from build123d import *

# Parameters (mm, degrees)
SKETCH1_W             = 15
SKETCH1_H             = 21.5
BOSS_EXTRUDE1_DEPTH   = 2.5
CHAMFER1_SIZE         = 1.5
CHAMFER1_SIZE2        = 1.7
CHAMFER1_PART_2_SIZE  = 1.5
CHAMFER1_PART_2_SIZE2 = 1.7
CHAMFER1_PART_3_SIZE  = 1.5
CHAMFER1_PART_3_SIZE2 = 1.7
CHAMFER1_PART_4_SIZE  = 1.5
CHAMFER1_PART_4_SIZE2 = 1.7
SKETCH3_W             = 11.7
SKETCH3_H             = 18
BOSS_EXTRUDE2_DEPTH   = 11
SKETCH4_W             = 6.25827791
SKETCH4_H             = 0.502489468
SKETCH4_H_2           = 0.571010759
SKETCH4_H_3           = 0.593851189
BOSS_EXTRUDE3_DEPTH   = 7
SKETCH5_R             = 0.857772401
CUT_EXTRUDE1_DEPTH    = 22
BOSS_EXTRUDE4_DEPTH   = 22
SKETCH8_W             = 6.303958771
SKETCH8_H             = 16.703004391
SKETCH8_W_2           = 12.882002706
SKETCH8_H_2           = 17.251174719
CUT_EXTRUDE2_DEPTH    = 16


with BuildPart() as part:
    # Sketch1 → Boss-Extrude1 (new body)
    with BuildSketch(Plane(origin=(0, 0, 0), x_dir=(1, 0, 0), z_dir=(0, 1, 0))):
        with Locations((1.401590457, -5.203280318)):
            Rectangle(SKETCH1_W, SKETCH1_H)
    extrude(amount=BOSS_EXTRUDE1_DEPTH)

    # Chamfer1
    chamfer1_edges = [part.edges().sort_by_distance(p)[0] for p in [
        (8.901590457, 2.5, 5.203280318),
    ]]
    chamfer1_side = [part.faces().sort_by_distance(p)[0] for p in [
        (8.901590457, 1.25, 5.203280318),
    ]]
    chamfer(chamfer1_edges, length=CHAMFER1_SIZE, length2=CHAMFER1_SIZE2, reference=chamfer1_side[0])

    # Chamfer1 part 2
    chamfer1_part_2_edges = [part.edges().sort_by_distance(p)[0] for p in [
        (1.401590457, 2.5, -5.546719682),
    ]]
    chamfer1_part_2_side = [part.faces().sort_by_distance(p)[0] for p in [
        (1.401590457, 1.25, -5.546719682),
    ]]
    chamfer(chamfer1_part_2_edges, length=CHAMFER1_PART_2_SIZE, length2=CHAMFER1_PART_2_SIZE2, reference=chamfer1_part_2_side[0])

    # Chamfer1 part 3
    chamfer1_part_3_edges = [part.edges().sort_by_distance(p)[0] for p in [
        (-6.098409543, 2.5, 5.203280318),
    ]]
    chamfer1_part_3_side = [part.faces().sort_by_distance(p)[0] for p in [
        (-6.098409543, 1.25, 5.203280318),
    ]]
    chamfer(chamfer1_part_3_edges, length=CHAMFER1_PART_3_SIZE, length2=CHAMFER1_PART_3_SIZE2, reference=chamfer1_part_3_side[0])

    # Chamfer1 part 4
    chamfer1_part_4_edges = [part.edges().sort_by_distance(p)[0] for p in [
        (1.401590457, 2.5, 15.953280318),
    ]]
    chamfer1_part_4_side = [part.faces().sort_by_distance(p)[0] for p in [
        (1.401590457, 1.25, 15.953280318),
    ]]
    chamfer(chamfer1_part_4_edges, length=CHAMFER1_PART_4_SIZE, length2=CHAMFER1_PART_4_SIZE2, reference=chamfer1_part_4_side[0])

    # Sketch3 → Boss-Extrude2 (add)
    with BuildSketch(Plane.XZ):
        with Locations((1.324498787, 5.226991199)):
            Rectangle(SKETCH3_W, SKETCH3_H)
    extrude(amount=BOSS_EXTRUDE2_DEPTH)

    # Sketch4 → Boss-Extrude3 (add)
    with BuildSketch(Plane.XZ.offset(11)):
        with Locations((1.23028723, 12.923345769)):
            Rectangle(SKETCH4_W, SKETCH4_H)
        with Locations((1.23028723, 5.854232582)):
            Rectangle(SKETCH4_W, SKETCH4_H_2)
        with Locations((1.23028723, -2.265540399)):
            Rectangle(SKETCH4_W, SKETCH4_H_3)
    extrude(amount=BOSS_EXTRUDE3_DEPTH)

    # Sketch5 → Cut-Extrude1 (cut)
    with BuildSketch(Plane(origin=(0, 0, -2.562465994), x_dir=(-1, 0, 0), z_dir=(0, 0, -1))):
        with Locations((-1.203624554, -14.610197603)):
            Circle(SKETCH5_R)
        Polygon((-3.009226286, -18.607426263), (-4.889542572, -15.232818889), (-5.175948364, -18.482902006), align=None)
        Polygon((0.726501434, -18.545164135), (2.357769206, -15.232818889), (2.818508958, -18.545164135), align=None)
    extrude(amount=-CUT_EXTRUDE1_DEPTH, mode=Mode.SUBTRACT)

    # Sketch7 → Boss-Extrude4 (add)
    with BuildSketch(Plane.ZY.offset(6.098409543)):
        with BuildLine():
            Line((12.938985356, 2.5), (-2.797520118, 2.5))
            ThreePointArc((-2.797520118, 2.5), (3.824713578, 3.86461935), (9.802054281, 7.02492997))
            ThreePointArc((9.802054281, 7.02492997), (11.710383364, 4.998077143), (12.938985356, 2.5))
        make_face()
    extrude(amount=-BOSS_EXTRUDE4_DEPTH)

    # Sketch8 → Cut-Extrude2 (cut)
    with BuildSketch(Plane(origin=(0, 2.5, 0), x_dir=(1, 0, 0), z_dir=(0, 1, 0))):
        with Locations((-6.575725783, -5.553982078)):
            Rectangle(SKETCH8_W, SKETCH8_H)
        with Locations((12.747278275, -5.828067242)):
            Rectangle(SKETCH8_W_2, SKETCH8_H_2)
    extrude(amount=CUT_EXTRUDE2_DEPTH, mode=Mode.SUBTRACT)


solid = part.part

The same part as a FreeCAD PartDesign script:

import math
import FreeCAD as App
import Part
import Sketcher

V = App.Vector


def edges_at(feature, points):
    """Names of the edges that pass closest to the given points."""
    edges = feature.Shape.Edges
    near = lambda p: min(range(len(edges)), key=lambda i: edges[i].distToShape(Part.Vertex(*p))[0])
    return sorted({f"Edge{near(p) + 1}" for p in points})

doc = App.newDocument("Part")
body = doc.addObject("PartDesign::Body", "Body")

sketch1 = doc.addObject("Sketcher::SketchObject", "Sketch")
body.addObject(sketch1)
sketch1.AttachmentSupport = (doc.XZ_Plane, [""])
sketch1.MapMode = "FlatFace"
sketch1.addGeometry([
    Part.LineSegment(V(-6, -6, 0), V(-6, 16, 0)),
    Part.LineSegment(V(-6, 16, 0), V(9, 16, 0)),
    Part.LineSegment(V(9, 16, 0), V(9, -6, 0)),
    Part.LineSegment(V(9, -6, 0), V(-6, -6, 0)),
], False)
sketch1.addConstraint([
    Sketcher.Constraint("Coincident", 0, 2, 1, 1),
    Sketcher.Constraint("Coincident", 1, 2, 2, 1),
    Sketcher.Constraint("Coincident", 2, 2, 3, 1),
    Sketcher.Constraint("Coincident", 3, 2, 0, 1),
    Sketcher.Constraint("Vertical", 0),
    Sketcher.Constraint("Horizontal", 1),
    Sketcher.Constraint("Vertical", 2),
    Sketcher.Constraint("Horizontal", 3),
    Sketcher.Constraint("DistanceX", 1, 1, 1, 2, 15.0),
    Sketcher.Constraint("DistanceY", 0, 1, 0, 2, 21.5),
    Sketcher.Constraint("DistanceX", 0, 2, -1, 1, 6.09841),
    Sketcher.Constraint("DistanceY", -1, 1, 0, 2, 15.95328),
])
pad1 = doc.addObject("PartDesign::Pad", "Pad")
body.addObject(pad1)
pad1.Profile = sketch1
pad1.Length = 2.5
pad1.Reversed = True
doc.recompute()

chamfer = doc.addObject("PartDesign::Chamfer", "Chamfer")
body.addObject(chamfer)
chamfer.Base = (pad1, edges_at(pad1, [(8.902, 2.5, 5.203)]))
chamfer.ChamferType = "Two distances"
chamfer.Size = 1.5
chamfer.Size2 = 1.7
doc.recompute()

chamfer2 = doc.addObject("PartDesign::Chamfer", "Chamfer001")
body.addObject(chamfer2)
chamfer2.Base = (chamfer, edges_at(chamfer, [(0.552, 2.5, -5.547)]))
chamfer2.ChamferType = "Two distances"
chamfer2.Size = 1.5
chamfer2.Size2 = 1.7
chamfer2.FlipDirection = True
doc.recompute()

chamfer3 = doc.addObject("PartDesign::Chamfer", "Chamfer002")
body.addObject(chamfer3)
chamfer3.Base = (chamfer2, edges_at(chamfer2, [(-6.098, 2.5, 6.053)]))
chamfer3.ChamferType = "Two distances"
chamfer3.Size = 1.5
chamfer3.Size2 = 1.7
chamfer3.FlipDirection = True
doc.recompute()

chamfer4 = doc.addObject("PartDesign::Chamfer", "Chamfer003")
body.addObject(chamfer4)
chamfer4.Base = (chamfer3, edges_at(chamfer3, [(1.402, 2.5, 15.953)]))
chamfer4.ChamferType = "Two distances"
chamfer4.Size = 1.5
chamfer4.Size2 = 1.7
chamfer4.FlipDirection = True

sketch2 = doc.addObject("Sketcher::SketchObject", "Sketch001")
body.addObject(sketch2)
sketch2.AttachmentSupport = (doc.XZ_Plane, [""])
sketch2.MapMode = "FlatFace"
sketch2.addGeometry([
    Part.LineSegment(V(-5, 14, 0), V(-5, -4, 0)),
    Part.LineSegment(V(-5, -4, 0), V(7, -4, 0)),
    Part.LineSegment(V(7, -4, 0), V(7, 14, 0)),
    Part.LineSegment(V(7, 14, 0), V(-5, 14, 0)),
], False)
sketch2.addConstraint([
    Sketcher.Constraint("Coincident", 0, 2, 1, 1),
    Sketcher.Constraint("Coincident", 1, 2, 2, 1),
    Sketcher.Constraint("Coincident", 2, 2, 3, 1),
    Sketcher.Constraint("Coincident", 3, 2, 0, 1),
    Sketcher.Constraint("Vertical", 0),
    Sketcher.Constraint("Horizontal", 1),
    Sketcher.Constraint("Vertical", 2),
    Sketcher.Constraint("Horizontal", 3),
    Sketcher.Constraint("DistanceY", 0, 2, 0, 1, 18.0),
    Sketcher.Constraint("DistanceX", 1, 1, 1, 2, 11.7),
    Sketcher.Constraint("DistanceX", 0, 2, -1, 1, 4.525501),
    Sketcher.Constraint("DistanceY", 0, 2, -1, 1, 3.773009),
])
pad2 = doc.addObject("PartDesign::Pad", "Pad001")
body.addObject(pad2)
pad2.Profile = sketch2
pad2.Length = 11

sketch3 = doc.addObject("Sketcher::SketchObject", "Sketch002")
body.addObject(sketch3)
sketch3.AttachmentSupport = (doc.XZ_Plane, [""])
sketch3.MapMode = "FlatFace"
sketch3.AttachmentOffset = App.Placement(V(0, 0, 11), App.Rotation())
sketch3.addGeometry([
    Part.LineSegment(V(-1.9, 13.2, 0), V(-1.9, 12.7, 0)),
    Part.LineSegment(V(-1.9, 12.7, 0), V(4.4, 12.7, 0)),
    Part.LineSegment(V(4.4, 12.7, 0), V(4.4, 13.2, 0)),
    Part.LineSegment(V(4.4, 13.2, 0), V(-1.9, 13.2, 0)),
    Part.LineSegment(V(-1.9, 6.1, 0), V(-1.9, 5.6, 0)),
    Part.LineSegment(V(-1.9, 5.6, 0), V(4.4, 5.6, 0)),
    Part.LineSegment(V(4.4, 5.6, 0), V(4.4, 6.1, 0)),
    Part.LineSegment(V(4.4, 6.1, 0), V(-1.9, 6.1, 0)),
    Part.LineSegment(V(-1.9, -2, 0), V(-1.9, -2.6, 0)),
    Part.LineSegment(V(-1.9, -2.6, 0), V(4.4, -2.6, 0)),
    Part.LineSegment(V(4.4, -2.6, 0), V(4.4, -2, 0)),
    Part.LineSegment(V(4.4, -2, 0), V(-1.9, -2, 0)),
], False)
sketch3.addConstraint([
    Sketcher.Constraint("Coincident", 0, 2, 1, 1),
    Sketcher.Constraint("Coincident", 1, 2, 2, 1),
    Sketcher.Constraint("Coincident", 2, 2, 3, 1),
    Sketcher.Constraint("Coincident", 3, 2, 0, 1),
    Sketcher.Constraint("Coincident", 4, 2, 5, 1),
    Sketcher.Constraint("Coincident", 5, 2, 6, 1),
    Sketcher.Constraint("Coincident", 6, 2, 7, 1),
    Sketcher.Constraint("Coincident", 7, 2, 4, 1),
    Sketcher.Constraint("Coincident", 8, 2, 9, 1),
    Sketcher.Constraint("Coincident", 9, 2, 10, 1),
    Sketcher.Constraint("Coincident", 10, 2, 11, 1),
    Sketcher.Constraint("Coincident", 11, 2, 8, 1),
    Sketcher.Constraint("Vertical", 0),
    Sketcher.Constraint("Horizontal", 1),
    Sketcher.Constraint("Vertical", 2),
    Sketcher.Constraint("Horizontal", 3),
    Sketcher.Constraint("Vertical", 4),
    Sketcher.Constraint("Horizontal", 5),
    Sketcher.Constraint("Vertical", 6),
    Sketcher.Constraint("Horizontal", 7),
    Sketcher.Constraint("Vertical", 8),
    Sketcher.Constraint("Horizontal", 9),
    Sketcher.Constraint("Vertical", 10),
    Sketcher.Constraint("Horizontal", 11),
    Sketcher.Constraint("Vertical", 3, 2, 4, 2),
    Sketcher.Constraint("Vertical", 2, 2, 5, 2),
    Sketcher.Constraint("Vertical", 7, 2, 8, 2),
    Sketcher.Constraint("Vertical", 6, 2, 9, 2),
    Sketcher.Constraint("DistanceY", 0, 2, 0, 1, 0.502489),
    Sketcher.Constraint("DistanceY", 4, 2, 4, 1, 0.571011),
    Sketcher.Constraint("DistanceY", 8, 2, 8, 1, 0.593851),
    Sketcher.Constraint("DistanceY", -1, 1, 0, 2, 12.672101),
    Sketcher.Constraint("DistanceX", 1, 1, 1, 2, 6.258278),
    Sketcher.Constraint("DistanceX", 0, 2, -1, 1, 1.898852),
    Sketcher.Constraint("DistanceY", -1, 1, 4, 2, 5.568727),
    Sketcher.Constraint("DistanceY", 8, 2, -1, 1, 2.562466),
])
pad3 = doc.addObject("PartDesign::Pad", "Pad002")
body.addObject(pad3)
pad3.Profile = sketch3
pad3.Length = 7

sketch4 = doc.addObject("Sketcher::SketchObject", "Sketch003")
body.addObject(sketch4)
sketch4.AttachmentSupport = (doc.XY_Plane, [""])
sketch4.MapMode = "FlatFace"
sketch4.AttachmentOffset = App.Placement(V(0, 0, -2.562466), App.Rotation())
sketch4.addGeometry([
    Part.Circle(V(1.2, -14.6, 0), V(0, 0, 1), 0.9),
    Part.LineSegment(V(3, -18.6, 0), V(4.9, -15.2, 0)),
    Part.LineSegment(V(4.9, -15.2, 0), V(5.2, -18.5, 0)),
    Part.LineSegment(V(5.2, -18.5, 0), V(3, -18.6, 0)),
    Part.LineSegment(V(-2.4, -15.2, 0), V(-0.7, -18.5, 0)),
    Part.LineSegment(V(-0.7, -18.5, 0), V(-2.8, -18.5, 0)),
    Part.LineSegment(V(-2.8, -18.5, 0), V(-2.4, -15.2, 0)),
], False)
sketch4.addConstraint([
    Sketcher.Constraint("Coincident", 1, 2, 2, 1),
    Sketcher.Constraint("Coincident", 2, 2, 3, 1),
    Sketcher.Constraint("Coincident", 3, 2, 1, 1),
    Sketcher.Constraint("Coincident", 4, 2, 5, 1),
    Sketcher.Constraint("Coincident", 5, 2, 6, 1),
    Sketcher.Constraint("Coincident", 6, 2, 4, 1),
    Sketcher.Constraint("Horizontal", 5),
    Sketcher.Constraint("Horizontal", 1, 2, 6, 2),
    Sketcher.Constraint("Diameter", 0, 1.715545),
    Sketcher.Constraint("DistanceX", 4, 2, -1, 1, 0.726501),
    Sketcher.Constraint("DistanceX", 0, 3, 3, 2, 1.805602),
    Sketcher.Constraint("Distance", 2, 3.262678),
    Sketcher.Constraint("DistanceX", 5, 2, 5, 1, 2.092008),
    Sketcher.Constraint("DistanceY", 1, 2, -1, 1, 15.232819),
    Sketcher.Constraint("DistanceX", -1, 1, 2, 2, 5.175948),
    Sketcher.Constraint("DistanceX", 6, 2, -1, 1, 2.357769),
    Sketcher.Constraint("DistanceX", 0, 3, 1, 2, 3.685918),
    Sketcher.Constraint("DistanceY", 1, 2, 0, 3, 0.622621),
    Sketcher.Constraint("DistanceY", 3, 2, 0, 3, 3.997229),
    Sketcher.Constraint("DistanceX", 5, 2, 1, 2, 7.708052),
    Sketcher.Constraint("Distance", 4, 3.692244),
])
pocket1 = doc.addObject("PartDesign::Pocket", "Pocket")
body.addObject(pocket1)
pocket1.Profile = sketch4
pocket1.Length = 22
pocket1.Reversed = True

sketch5 = doc.addObject("Sketcher::SketchObject", "Sketch004")
body.addObject(sketch5)
sketch5.AttachmentSupport = (doc.YZ_Plane, [""])
sketch5.MapMode = "FlatFace"
sketch5.AttachmentOffset = App.Placement(V(0, 0, -6.09841), App.Rotation())
sketch5.addGeometry([
    Part.LineSegment(V(2, -3, 0), V(2, 13, 0)),
    Part.ArcOfCircle(Part.Circle(V(0, 4, 0), V(0, 0, 1), 9), math.radians(38), math.radians(72)),
    Part.ArcOfCircle(Part.Circle(V(26, -4, 0), V(0, 0, 1), 24), math.radians(144), math.radians(176)),
], False)
sketch5.addConstraint([
    Sketcher.Constraint("Coincident", 0, 2, 1, 2),
    Sketcher.Constraint("Coincident", 1, 1, 2, 1),
    Sketcher.Constraint("Coincident", 2, 2, 0, 1),
    Sketcher.Constraint("Vertical", 0),
    Sketcher.Constraint("Radius", 1, 9.37),
    Sketcher.Constraint("DistanceX", -1, 1, 0, 2, 2.5),
    Sketcher.Constraint("Radius", 2, 23.960484),
    Sketcher.Constraint("DistanceY", 0, 1, 0, 2, 15.736505),
    Sketcher.Constraint("DistanceX", 1, 3, -1, 1, 0.340351),
    Sketcher.Constraint("DistanceY", -1, 1, 1, 3, 4.009859),
    Sketcher.Constraint("DistanceY", 2, 3, -1, 1, 4.27387),
])
pad4 = doc.addObject("PartDesign::Pad", "Pad003")
body.addObject(pad4)
pad4.Profile = sketch5
pad4.Length = 22

sketch6 = doc.addObject("Sketcher::SketchObject", "Sketch005")
body.addObject(sketch6)
sketch6.AttachmentSupport = (doc.XZ_Plane, [""])
sketch6.MapMode = "FlatFace"
sketch6.AttachmentOffset = App.Placement(V(0, 0, -2.5), App.Rotation())
sketch6.addGeometry([
    Part.LineSegment(V(-10, -3, 0), V(-10, 14, 0)),
    Part.LineSegment(V(-10, 14, 0), V(-3, 14, 0)),
    Part.LineSegment(V(-3, 14, 0), V(-3, -3, 0)),
    Part.LineSegment(V(-3, -3, 0), V(-10, -3, 0)),
    Part.LineSegment(V(6, -3, 0), V(6, 14, 0)),
    Part.LineSegment(V(6, 14, 0), V(19, 14, 0)),
    Part.LineSegment(V(19, 14, 0), V(19, -3, 0)),
    Part.LineSegment(V(19, -3, 0), V(6, -3, 0)),
], False)
sketch6.addConstraint([
    Sketcher.Constraint("Coincident", 0, 2, 1, 1),
    Sketcher.Constraint("Coincident", 1, 2, 2, 1),
    Sketcher.Constraint("Coincident", 2, 2, 3, 1),
    Sketcher.Constraint("Coincident", 3, 2, 0, 1),
    Sketcher.Constraint("Coincident", 4, 2, 5, 1),
    Sketcher.Constraint("Coincident", 5, 2, 6, 1),
    Sketcher.Constraint("Coincident", 6, 2, 7, 1),
    Sketcher.Constraint("Coincident", 7, 2, 4, 1),
    Sketcher.Constraint("Vertical", 0),
    Sketcher.Constraint("Horizontal", 1),
    Sketcher.Constraint("Vertical", 2),
    Sketcher.Constraint("Horizontal", 3),
    Sketcher.Constraint("Vertical", 4),
    Sketcher.Constraint("Horizontal", 5),
    Sketcher.Constraint("Vertical", 6),
    Sketcher.Constraint("Horizontal", 7),
    Sketcher.Constraint("Horizontal", 3, 2, 6, 2),
    Sketcher.Constraint("DistanceX", 1, 1, 1, 2, 6.303959),
    Sketcher.Constraint("DistanceX", 5, 1, 5, 2, 12.882003),
    Sketcher.Constraint("DistanceY", 0, 1, 0, 2, 16.703004),
    Sketcher.Constraint("DistanceY", 4, 1, 4, 2, 17.251175),
    Sketcher.Constraint("DistanceY", 2, 2, -1, 1, 2.79752),
    Sketcher.Constraint("DistanceX", -1, 1, 5, 2, 19.18828),
    Sketcher.Constraint("DistanceX", 0, 2, -1, 1, 9.727705),
])
pocket2 = doc.addObject("PartDesign::Pocket", "Pocket001")
body.addObject(pocket2)
pocket2.Profile = sketch6
pocket2.Length = 16

doc.recompute()
